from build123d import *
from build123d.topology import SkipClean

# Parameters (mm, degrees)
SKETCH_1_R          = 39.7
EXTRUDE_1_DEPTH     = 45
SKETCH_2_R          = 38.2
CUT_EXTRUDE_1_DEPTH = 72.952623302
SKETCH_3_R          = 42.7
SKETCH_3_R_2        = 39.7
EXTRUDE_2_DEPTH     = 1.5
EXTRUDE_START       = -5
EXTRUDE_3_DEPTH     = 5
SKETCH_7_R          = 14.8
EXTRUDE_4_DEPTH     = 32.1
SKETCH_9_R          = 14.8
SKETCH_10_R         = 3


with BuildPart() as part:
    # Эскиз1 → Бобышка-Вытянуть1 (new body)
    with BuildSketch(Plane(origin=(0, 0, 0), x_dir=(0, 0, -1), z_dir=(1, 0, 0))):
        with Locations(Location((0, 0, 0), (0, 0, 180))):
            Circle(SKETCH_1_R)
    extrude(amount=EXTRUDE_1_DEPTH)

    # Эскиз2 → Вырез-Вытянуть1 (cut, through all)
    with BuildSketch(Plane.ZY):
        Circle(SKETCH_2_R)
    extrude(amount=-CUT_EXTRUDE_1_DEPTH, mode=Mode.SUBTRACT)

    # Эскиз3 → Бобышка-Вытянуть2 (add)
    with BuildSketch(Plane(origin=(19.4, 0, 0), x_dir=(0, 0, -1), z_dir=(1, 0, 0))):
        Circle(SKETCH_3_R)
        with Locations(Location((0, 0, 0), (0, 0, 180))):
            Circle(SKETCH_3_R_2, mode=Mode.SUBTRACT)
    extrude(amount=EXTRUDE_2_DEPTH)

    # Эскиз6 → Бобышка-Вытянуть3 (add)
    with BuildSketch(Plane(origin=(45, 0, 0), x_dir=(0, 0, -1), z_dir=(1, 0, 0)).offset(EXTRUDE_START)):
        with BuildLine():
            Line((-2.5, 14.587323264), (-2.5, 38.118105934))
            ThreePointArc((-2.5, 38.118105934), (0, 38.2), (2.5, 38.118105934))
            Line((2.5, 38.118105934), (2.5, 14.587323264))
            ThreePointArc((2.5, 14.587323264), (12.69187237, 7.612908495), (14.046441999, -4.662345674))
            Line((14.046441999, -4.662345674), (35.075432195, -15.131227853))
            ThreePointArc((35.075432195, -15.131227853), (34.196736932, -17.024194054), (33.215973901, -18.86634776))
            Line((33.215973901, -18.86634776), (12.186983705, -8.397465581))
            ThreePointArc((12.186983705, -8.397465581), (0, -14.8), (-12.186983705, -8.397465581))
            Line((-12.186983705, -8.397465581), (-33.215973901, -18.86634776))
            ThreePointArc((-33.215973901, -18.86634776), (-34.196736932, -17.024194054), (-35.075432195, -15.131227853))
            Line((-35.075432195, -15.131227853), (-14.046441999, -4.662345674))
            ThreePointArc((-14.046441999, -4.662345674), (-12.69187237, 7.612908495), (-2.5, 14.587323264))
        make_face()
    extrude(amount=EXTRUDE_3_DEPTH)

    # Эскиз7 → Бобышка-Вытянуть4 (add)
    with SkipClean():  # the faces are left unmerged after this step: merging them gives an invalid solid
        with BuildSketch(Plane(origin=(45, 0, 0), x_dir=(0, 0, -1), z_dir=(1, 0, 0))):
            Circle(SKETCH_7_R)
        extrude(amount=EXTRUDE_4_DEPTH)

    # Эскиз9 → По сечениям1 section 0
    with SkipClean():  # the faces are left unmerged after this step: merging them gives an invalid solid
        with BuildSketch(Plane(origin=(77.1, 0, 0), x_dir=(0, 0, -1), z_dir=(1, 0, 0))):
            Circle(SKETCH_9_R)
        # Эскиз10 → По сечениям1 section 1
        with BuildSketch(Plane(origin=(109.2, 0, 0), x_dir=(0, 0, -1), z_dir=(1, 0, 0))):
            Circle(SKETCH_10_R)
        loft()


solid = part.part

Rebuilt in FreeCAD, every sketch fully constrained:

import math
import FreeCAD as App
import Part
import Sketcher
Q = App.Units.Quantity

doc = App.newDocument("Part")
body = doc.addObject("PartDesign::Body", "Body")

# Sketch on YZ plane
sketch1 = doc.addObject("Sketcher::SketchObject", "Sketch")
body.addObject(sketch1)
sketch1.AttachmentSupport = (doc.YZ_Plane, [""])
sketch1.MapMode = "FlatFace"
sketch1.addGeometry(Part.Circle(App.Vector(0, 0, 0), App.Vector(0, 0, 1), 40), False)
sketch1.addConstraint([
    Sketcher.Constraint("Coincident", 0, 3, -1, 1),
    Sketcher.Constraint("Diameter", 0, Q("79.4 mm")),
])
pad1 = doc.addObject("PartDesign::Pad", "Pad")
body.addObject(pad1)
pad1.Profile = sketch1
pad1.Length = 45

# Sketch on YZ plane
sketch2 = doc.addObject("Sketcher::SketchObject", "Sketch001")
body.addObject(sketch2)
sketch2.AttachmentSupport = (doc.YZ_Plane, [""])
sketch2.MapMode = "FlatFace"
sketch2.addGeometry(Part.Circle(App.Vector(0, 0, 0), App.Vector(0, 0, 1), 38), False)
sketch2.addConstraint([
    Sketcher.Constraint("Coincident", 0, 3, -1, 1),
    Sketcher.Constraint("Diameter", 0, Q("76.4 mm")),
])
pocket1 = doc.addObject("PartDesign::Pocket", "Pocket")
body.addObject(pocket1)
pocket1.Profile = sketch2
pocket1.Type = "ThroughAll"
pocket1.Reversed = True

# Sketch on YZ plane
sketch3 = doc.addObject("Sketcher::SketchObject", "Sketch002")
body.addObject(sketch3)
sketch3.AttachmentSupport = (doc.YZ_Plane, [""])
sketch3.MapMode = "FlatFace"
sketch3.AttachmentOffset = App.Placement(App.Vector(0, 0, 19.4), App.Rotation())
sketch3.addGeometry([
    Part.Circle(App.Vector(0, 0, 0), App.Vector(0, 0, 1), 43),
    Part.Circle(App.Vector(0, 0, 0), App.Vector(0, 0, 1), 40),
], False)
sketch3.addConstraint([
    Sketcher.Constraint("Coincident", 0, 3, -1, 1),
    Sketcher.Constraint("Coincident", 1, 3, -1, 1),
    Sketcher.Constraint("Diameter", 0, Q("85.4 mm")),
    Sketcher.Constraint("Diameter", 1, Q("79.4 mm")),
])
pad2 = doc.addObject("PartDesign::Pad", "Pad001")
body.addObject(pad2)
pad2.Profile = sketch3
pad2.Length = 1.5

# Sketch on YZ plane
sketch4 = doc.addObject("Sketcher::SketchObject", "Sketch003")
body.addObject(sketch4)
sketch4.AttachmentSupport = (doc.YZ_Plane, [""])
sketch4.MapMode = "FlatFace"
sketch4.AttachmentOffset = App.Placement(App.Vector(0, 0, 40), App.Rotation())
sketch4.addGeometry([
    Part.LineSegment(App.Vector(38.1, 2.5, 0), App.Vector(14.6, 2.5, 0)),  # 0
    Part.ArcOfCircle(Part.Circle(App.Vector(0, 0, 0), App.Vector(0, 0, 1), 14.8), math.radians(10), math.radians(108)),  # 1
    Part.LineSegment(App.Vector(-4.7, 14, 0), App.Vector(-15.1, 35.1, 0)),  # 2
    Part.ArcOfCircle(Part.Circle(App.Vector(0, 0, 0), App.Vector(0, 0, 1), 38.2), math.radians(113.33), math.radians(119.6)),  # 3
    Part.LineSegment(App.Vector(-18.9, 33.2, 0), App.Vector(-8.4, 12.2, 0)),  # 4
    Part.ArcOfCircle(Part.Circle(App.Vector(0, 0, 0), App.Vector(0, 0, 1), 14.8), math.radians(125), math.radians(235)),  # 5
    Part.LineSegment(App.Vector(-8.4, -12.2, 0), App.Vector(-18.9, -33.2, 0)),  # 6
    Part.ArcOfCircle(Part.Circle(App.Vector(0, 0, 0), App.Vector(0, 0, 1), 38.2), math.radians(-119.6), math.radians(-113.33)),  # 7
    Part.LineSegment(App.Vector(-15.1, -35.1, 0), App.Vector(-4.7, -14, 0)),  # 8
    Part.ArcOfCircle(Part.Circle(App.Vector(0, 0, 0), App.Vector(0, 0, 1), 14.8), math.radians(-108), math.radians(-10)),  # 9
    Part.LineSegment(App.Vector(14.6, -2.5, 0), App.Vector(38.1, -2.5, 0)),  # 10
    Part.ArcOfCircle(Part.Circle(App.Vector(0, 0, 0), App.Vector(0, 0, 1), 38.2), math.radians(-3.75), math.radians(3.75)),  # 11
], False)
sketch4.addConstraint([
    Sketcher.Constraint("Coincident", 0, 2, 1, 1),
    Sketcher.Constraint("Coincident", 1, 2, 2, 1),
    Sketcher.Constraint("Coincident", 2, 2, 3, 1),
    Sketcher.Constraint("Coincident", 3, 2, 4, 1),
    Sketcher.Constraint("Coincident", 4, 2, 5, 1),
    Sketcher.Constraint("Coincident", 5, 2, 6, 1),
    Sketcher.Constraint("Coincident", 6, 2, 7, 1),
    Sketcher.Constraint("Coincident", 7, 2, 8, 1),
    Sketcher.Constraint("Coincident", 8, 2, 9, 1),
    Sketcher.Constraint("Coincident", 9, 2, 10, 1),
    Sketcher.Constraint("Coincident", 10, 2, 11, 1),
    Sketcher.Constraint("Coincident", 11, 2, 0, 1),
    Sketcher.Constraint("Horizontal", 0),
    Sketcher.Constraint("Horizontal", 10),
    Sketcher.Constraint("Coincident", 1, 3, -1, 1),
    Sketcher.Constraint("Coincident", 3, 3, -1, 1),
    Sketcher.Constraint("Coincident", 5, 3, -1, 1),
    Sketcher.Constraint("Coincident", 7, 3, -1, 1),
    Sketcher.Constraint("Coincident", 9, 3, -1, 1),
    Sketcher.Constraint("Coincident", 11, 3, -1, 1),
    Sketcher.Constraint("Equal", 1, 5),
    Sketcher.Constraint("Equal", 3, 7),
    Sketcher.Constraint("Equal", 5, 9),
    Sketcher.Constraint("Equal", 7, 11),
    Sketcher.Constraint("Parallel", 2, 4),
    Sketcher.Constraint("Parallel", 6, 8),
    Sketcher.Constraint("Vertical", 4, 2, 5, 2),
    Sketcher.Constraint("Vertical", 3, 2, 6, 2),
    Sketcher.Constraint("Vertical", 2, 2, 7, 2),
    Sketcher.Constraint("Vertical", 0, 2, 9, 2),
    Sketcher.Constraint("Equal", 2, 4),
    Sketcher.Constraint("Radius", 1, Q("14.8 mm")),
    Sketcher.Constraint("Radius", 3, Q("38.2 mm")),
    Sketcher.Constraint("DistanceY", 9, 2, 0, 2, Q("5 mm")),
    Sketcher.Constraint("DistanceY", -1, 1, 1, 2, Q("14.046442 mm")),
    Sketcher.Constraint("DistanceY", 1, 2, 2, 2, Q("21.02899 mm")),
])
pad3 = doc.addObject("PartDesign::Pad", "Pad002")
body.addObject(pad3)
pad3.Profile = sketch4
pad3.Length = 5

# Sketch on YZ plane
sketch5 = doc.addObject("Sketcher::SketchObject", "Sketch004")
body.addObject(sketch5)
sketch5.AttachmentSupport = (doc.YZ_Plane, [""])
sketch5.MapMode = "FlatFace"
sketch5.AttachmentOffset = App.Placement(App.Vector(0, 0, 45), App.Rotation())
sketch5.addGeometry(Part.Circle(App.Vector(0, 0, 0), App.Vector(0, 0, 1), 15), False)
sketch5.addConstraint([
    Sketcher.Constraint("Coincident", 0, 3, -1, 1),
    Sketcher.Constraint("Diameter", 0, Q("29.6 mm")),
])
pad4 = doc.addObject("PartDesign::Pad", "Pad003")
body.addObject(pad4)
pad4.Profile = sketch5
pad4.Length = 32.1

# Sketch on YZ plane
sketch6 = doc.addObject("Sketcher::SketchObject", "Sketch005")
body.addObject(sketch6)
sketch6.AttachmentSupport = (doc.YZ_Plane, [""])
sketch6.MapMode = "FlatFace"
sketch6.AttachmentOffset = App.Placement(App.Vector(0, 0, 77.1), App.Rotation())
sketch6.addGeometry(Part.Circle(App.Vector(0, 0, 0), App.Vector(0, 0, 1), 15), False)
sketch6.addConstraint([
    Sketcher.Constraint("Coincident", 0, 3, -1, 1),
    Sketcher.Constraint("Diameter", 0, Q("29.6 mm")),
])

# Sketch on YZ plane
sketch7 = doc.addObject("Sketcher::SketchObject", "Sketch006")
body.addObject(sketch7)
sketch7.AttachmentSupport = (doc.YZ_Plane, [""])
sketch7.MapMode = "FlatFace"
sketch7.AttachmentOffset = App.Placement(App.Vector(0, 0, 109.2), App.Rotation())
sketch7.addGeometry(Part.Circle(App.Vector(0, 0, 0), App.Vector(0, 0, 1), 3), False)
sketch7.addConstraint([
    Sketcher.Constraint("Coincident", 0, 3, -1, 1),
    Sketcher.Constraint("Diameter", 0, Q("6 mm")),
])

additiveloft = doc.addObject("PartDesign::AdditiveLoft", "AdditiveLoft")
body.addObject(additiveloft)
additiveloft.Profile = sketch6
additiveloft.Sections = [sketch7]

doc.recompute()
